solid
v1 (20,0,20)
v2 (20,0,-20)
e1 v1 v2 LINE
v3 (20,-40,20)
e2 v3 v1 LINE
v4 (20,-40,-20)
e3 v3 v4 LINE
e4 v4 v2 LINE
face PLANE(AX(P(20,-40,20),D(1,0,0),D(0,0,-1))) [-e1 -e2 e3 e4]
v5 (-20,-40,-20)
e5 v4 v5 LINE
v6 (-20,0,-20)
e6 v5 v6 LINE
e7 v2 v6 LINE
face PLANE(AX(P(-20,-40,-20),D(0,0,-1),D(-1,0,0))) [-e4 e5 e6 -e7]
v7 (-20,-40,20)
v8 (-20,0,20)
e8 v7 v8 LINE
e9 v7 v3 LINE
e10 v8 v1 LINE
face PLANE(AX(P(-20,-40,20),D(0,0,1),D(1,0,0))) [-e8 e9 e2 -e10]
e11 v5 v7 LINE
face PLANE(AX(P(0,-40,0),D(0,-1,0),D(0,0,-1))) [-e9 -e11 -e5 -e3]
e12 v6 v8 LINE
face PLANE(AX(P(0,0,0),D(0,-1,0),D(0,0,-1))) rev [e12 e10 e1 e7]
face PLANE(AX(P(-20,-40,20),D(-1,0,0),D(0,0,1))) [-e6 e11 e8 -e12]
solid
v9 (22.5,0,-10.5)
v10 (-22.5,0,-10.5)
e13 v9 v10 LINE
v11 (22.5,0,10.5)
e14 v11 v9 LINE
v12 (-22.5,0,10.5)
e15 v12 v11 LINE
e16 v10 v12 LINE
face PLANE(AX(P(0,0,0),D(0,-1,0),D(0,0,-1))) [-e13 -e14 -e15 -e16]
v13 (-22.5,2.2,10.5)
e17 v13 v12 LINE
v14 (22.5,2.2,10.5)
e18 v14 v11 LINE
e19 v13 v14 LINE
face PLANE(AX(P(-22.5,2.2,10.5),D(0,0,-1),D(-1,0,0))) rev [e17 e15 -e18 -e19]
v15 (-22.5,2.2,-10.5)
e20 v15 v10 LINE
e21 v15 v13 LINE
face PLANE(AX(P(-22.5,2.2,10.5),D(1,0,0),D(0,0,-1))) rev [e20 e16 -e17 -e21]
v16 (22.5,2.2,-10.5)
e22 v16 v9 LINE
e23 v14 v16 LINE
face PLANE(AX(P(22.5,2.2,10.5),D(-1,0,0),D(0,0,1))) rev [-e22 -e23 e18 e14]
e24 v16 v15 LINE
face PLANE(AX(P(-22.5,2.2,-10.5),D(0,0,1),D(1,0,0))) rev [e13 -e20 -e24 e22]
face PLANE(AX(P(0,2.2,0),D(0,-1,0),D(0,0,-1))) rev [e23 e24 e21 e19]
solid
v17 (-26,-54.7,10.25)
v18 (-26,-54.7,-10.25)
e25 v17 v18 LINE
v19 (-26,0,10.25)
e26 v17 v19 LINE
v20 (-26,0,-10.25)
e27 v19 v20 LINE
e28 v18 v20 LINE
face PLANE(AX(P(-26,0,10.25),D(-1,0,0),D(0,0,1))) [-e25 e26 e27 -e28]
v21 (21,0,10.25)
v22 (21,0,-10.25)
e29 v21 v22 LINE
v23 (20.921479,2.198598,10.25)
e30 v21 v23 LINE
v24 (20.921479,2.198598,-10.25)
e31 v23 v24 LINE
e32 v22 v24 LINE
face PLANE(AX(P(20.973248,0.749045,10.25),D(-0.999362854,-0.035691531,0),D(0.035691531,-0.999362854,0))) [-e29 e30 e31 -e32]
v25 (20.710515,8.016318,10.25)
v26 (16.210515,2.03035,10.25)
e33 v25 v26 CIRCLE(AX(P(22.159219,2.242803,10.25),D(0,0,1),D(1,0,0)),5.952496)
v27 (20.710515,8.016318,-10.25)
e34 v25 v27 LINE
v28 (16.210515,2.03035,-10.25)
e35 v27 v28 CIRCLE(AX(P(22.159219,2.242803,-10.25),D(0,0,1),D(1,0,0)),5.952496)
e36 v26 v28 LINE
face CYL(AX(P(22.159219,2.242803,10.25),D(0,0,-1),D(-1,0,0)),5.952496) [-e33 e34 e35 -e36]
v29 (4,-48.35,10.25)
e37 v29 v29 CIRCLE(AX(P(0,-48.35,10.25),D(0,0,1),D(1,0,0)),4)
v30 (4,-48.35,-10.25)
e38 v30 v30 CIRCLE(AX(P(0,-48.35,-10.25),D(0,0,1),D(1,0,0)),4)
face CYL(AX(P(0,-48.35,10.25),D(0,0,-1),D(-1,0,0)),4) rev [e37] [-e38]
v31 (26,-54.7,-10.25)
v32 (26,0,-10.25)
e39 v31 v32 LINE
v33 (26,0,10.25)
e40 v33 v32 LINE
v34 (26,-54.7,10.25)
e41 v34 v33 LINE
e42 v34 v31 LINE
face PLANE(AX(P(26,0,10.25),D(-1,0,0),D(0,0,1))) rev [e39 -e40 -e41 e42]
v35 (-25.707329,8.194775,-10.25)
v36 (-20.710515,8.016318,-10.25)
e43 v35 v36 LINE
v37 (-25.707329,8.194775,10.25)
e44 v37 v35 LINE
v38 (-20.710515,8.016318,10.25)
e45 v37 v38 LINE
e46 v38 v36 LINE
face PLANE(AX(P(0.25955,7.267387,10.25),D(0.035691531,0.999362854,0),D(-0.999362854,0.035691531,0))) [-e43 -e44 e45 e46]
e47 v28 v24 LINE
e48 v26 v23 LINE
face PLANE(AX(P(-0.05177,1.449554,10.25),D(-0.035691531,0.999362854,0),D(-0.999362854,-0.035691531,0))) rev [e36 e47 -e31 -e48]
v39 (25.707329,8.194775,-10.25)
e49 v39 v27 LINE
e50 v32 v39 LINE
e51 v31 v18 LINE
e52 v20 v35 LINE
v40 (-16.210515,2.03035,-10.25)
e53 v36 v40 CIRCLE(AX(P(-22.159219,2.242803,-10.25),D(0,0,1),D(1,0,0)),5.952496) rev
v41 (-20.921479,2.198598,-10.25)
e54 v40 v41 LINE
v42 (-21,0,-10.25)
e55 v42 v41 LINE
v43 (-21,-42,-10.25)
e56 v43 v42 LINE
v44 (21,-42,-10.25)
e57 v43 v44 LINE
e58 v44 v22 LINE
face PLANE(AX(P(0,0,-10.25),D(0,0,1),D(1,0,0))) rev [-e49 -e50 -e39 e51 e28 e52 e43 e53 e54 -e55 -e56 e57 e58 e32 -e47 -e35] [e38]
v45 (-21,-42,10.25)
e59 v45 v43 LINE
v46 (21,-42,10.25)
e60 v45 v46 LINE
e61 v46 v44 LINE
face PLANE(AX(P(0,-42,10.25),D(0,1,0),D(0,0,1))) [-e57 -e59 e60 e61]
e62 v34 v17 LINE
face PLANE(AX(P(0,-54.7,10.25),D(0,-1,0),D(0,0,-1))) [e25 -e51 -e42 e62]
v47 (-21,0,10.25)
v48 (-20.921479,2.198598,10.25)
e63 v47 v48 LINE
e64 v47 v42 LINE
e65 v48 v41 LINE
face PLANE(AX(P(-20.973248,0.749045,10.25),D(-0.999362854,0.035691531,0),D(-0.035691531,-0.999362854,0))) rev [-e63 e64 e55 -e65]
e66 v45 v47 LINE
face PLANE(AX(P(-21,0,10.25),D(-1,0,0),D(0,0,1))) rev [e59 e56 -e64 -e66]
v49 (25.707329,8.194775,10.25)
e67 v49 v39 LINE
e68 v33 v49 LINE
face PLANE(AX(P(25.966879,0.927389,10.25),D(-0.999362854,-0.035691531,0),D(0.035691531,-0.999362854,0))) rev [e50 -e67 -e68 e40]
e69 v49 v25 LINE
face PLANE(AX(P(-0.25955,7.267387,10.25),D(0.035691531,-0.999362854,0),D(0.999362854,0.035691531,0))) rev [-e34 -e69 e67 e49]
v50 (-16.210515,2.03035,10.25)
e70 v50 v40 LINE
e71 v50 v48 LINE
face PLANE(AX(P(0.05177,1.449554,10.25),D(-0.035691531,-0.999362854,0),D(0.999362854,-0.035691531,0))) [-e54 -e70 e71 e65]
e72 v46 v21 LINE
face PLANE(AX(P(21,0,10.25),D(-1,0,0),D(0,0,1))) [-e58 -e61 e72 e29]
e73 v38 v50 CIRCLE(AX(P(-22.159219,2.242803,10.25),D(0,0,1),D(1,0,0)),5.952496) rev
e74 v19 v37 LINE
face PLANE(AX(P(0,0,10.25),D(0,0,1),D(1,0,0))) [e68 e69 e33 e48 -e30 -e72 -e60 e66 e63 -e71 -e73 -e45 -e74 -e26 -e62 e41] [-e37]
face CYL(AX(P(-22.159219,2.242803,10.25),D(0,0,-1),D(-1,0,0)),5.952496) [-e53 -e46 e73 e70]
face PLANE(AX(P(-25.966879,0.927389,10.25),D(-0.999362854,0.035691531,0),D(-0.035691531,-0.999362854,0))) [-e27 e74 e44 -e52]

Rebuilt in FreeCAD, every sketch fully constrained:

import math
import FreeCAD as App
import Part
import Sketcher
from FreeCAD import Vector
Q = App.Units.Quantity

doc = App.newDocument("Part")
params = doc.addObject("Spreadsheet::Sheet", "Params")
for row, (alias, value) in enumerate([
    ("sketch1_width", "45 mm"),
    ("sketch1_height", "21 mm"),
    ("pad1_length", "2.2 mm"),
    ("sketch2_width", "40 mm"),
    ("pad2_length", "40 mm"),
    ("sketch3_diameter", "8 mm"),
    ("sketch3_width", "42 mm"),
    ("sketch3_width2", "52 mm"),
    ("sketch3_height", "42 mm"),
    ("sketch3_length", "5 mm"),
    ("pad3_length", "20.5 mm"),
], start=1):
    params.set(f"A{row}", alias)
    params.set(f"B{row}", "=" + value)
    params.setAlias(f"B{row}", alias)

body = doc.addObject("PartDesign::Body", "Body")

sketch1 = body.newObject("Sketcher::SketchObject", "Sketch")
sketch1.AttachmentSupport = (doc.getObject("XZ_Plane"), [""])
sketch1.MapMode = "FlatFace"
sketch1.addGeometry([
    Part.LineSegment(Vector(-22, -10, 0), Vector(-22, 10, 0)),
    Part.LineSegment(Vector(-22, 10, 0), Vector(22, 10, 0)),
    Part.LineSegment(Vector(22, 10, 0), Vector(22, -10, 0)),
    Part.LineSegment(Vector(22, -10, 0), Vector(-22, -10, 0)),
], False)
sketch1.addConstraint([
    Sketcher.Constraint("Coincident", 0, 2, 1, 1),
    Sketcher.Constraint("Coincident", 1, 2, 2, 1),
    Sketcher.Constraint("Coincident", 2, 2, 3, 1),
    Sketcher.Constraint("Coincident", 3, 2, 0, 1),
    Sketcher.Constraint("Vertical", 0),
    Sketcher.Constraint("Horizontal", 1),
    Sketcher.Constraint("Vertical", 2),
    Sketcher.Constraint("Horizontal", 3),
    Sketcher.Constraint("Symmetric", 0, 2, 2, 2, -1, 1),
    Sketcher.Constraint("DistanceX", 1, 1, 1, 2, Q("45 mm")),
    Sketcher.Constraint("DistanceY", 0, 1, 0, 2, Q("21 mm")),
])
sketch1.setExpression("Constraints[9]", "Params.sketch1_width")
sketch1.setExpression("Constraints[10]", "Params.sketch1_height")
pad1 = body.newObject("PartDesign::Pad", "Pad")
pad1.Profile = sketch1
pad1.setExpression("Length", "Params.pad1_length")
pad1.Reversed = True
body2 = doc.addObject("PartDesign::Body", "Body001")

sketch2 = body2.newObject("Sketcher::SketchObject", "Sketch001")
sketch2.AttachmentSupport = (doc.getObject("XZ_Plane001"), [""])
sketch2.MapMode = "FlatFace"
sketch2.addGeometry([
    Part.LineSegment(Vector(-20, -20, 0), Vector(-20, 20, 0)),
    Part.LineSegment(Vector(-20, 20, 0), Vector(20, 20, 0)),
    Part.LineSegment(Vector(20, 20, 0), Vector(20, -20, 0)),
    Part.LineSegment(Vector(20, -20, 0), Vector(-20, -20, 0)),
], False)
sketch2.addConstraint([
    Sketcher.Constraint("Coincident", 0, 2, 1, 1),
    Sketcher.Constraint("Coincident", 1, 2, 2, 1),
    Sketcher.Constraint("Coincident", 2, 2, 3, 1),
    Sketcher.Constraint("Coincident", 3, 2, 0, 1),
    Sketcher.Constraint("Vertical", 0),
    Sketcher.Constraint("Horizontal", 1),
    Sketcher.Constraint("Vertical", 2),
    Sketcher.Constraint("Horizontal", 3),
    Sketcher.Constraint("Symmetric", 0, 2, 2, 2, -1, 1),
    Sketcher.Constraint("Equal", 3, 0),
    Sketcher.Constraint("DistanceX", 1, 1, 1, 2, Q("40 mm")),
])
sketch2.setExpression("Constraints[10]", "Params.sketch2_width")
pad2 = body2.newObject("PartDesign::Pad", "Pad001")
pad2.Profile = sketch2
pad2.setExpression("Length", "Params.pad2_length")
body3 = doc.addObject("PartDesign::Body", "Body002")

sketch3 = body3.newObject("Sketcher::SketchObject", "Sketch002")
sketch3.AttachmentSupport = (doc.getObject("XY_Plane002"), [""])
sketch3.MapMode = "FlatFace"
sketch3.addGeometry([
    Part.LineSegment(Vector(26, -54.7, 0), Vector(26, 0, 0)),
    Part.LineSegment(Vector(26, 0, 0), Vector(25.707329, 8.194775, 0)),
    Part.LineSegment(Vector(25.707329, 8.194775, 0), Vector(20.710515, 8.016318, 0)),
    Part.ArcOfCircle(Part.Circle(Vector(22.159219, 2.242803, 0), Vector(0, 0, 1), 5.952496), math.radians(104.085969), math.radians(182.045408)),
    Part.LineSegment(Vector(16.210515, 2.03035, 0), Vector(20.921479, 2.198598, 0)),
    Part.LineSegment(Vector(20.921479, 2.198598, 0), Vector(21, 0, 0)),
    Part.LineSegment(Vector(21, 0, 0), Vector(21, -42, 0)),
    Part.LineSegment(Vector(21, -42, 0), Vector(-21, -42, 0)),
    Part.LineSegment(Vector(-21, -42, 0), Vector(-21, 0, 0)),
    Part.LineSegment(Vector(-21, 0, 0), Vector(-20.921479, 2.198598, 0)),
    Part.LineSegment(Vector(-20.921479, 2.198598, 0), Vector(-16.210515, 2.03035, 0)),
    Part.ArcOfCircle(Part.Circle(Vector(-22.159219, 2.242803, 0), Vector(0, 0, 1), 5.952496), math.radians(-2.045408), math.radians(75.914031)),
    Part.LineSegment(Vector(-20.710515, 8.016318, 0), Vector(-25.707329, 8.194775, 0)),
    Part.LineSegment(Vector(-25.707329, 8.194775, 0), Vector(-26, 0, 0)),
    Part.LineSegment(Vector(-26, 0, 0), Vector(-26, -54.7, 0)),
    Part.LineSegment(Vector(-26, -54.7, 0), Vector(26, -54.7, 0)),
    Part.Circle(Vector(0, -48.35, 0), Vector(0, 0, 1), 4),
], False)
sketch3.addConstraint([
    Sketcher.Constraint("Coincident", 0, 2, 1, 1),
    Sketcher.Constraint("Coincident", 1, 2, 2, 1),
    Sketcher.Constraint("Coincident", 2, 2, 3, 1),
    Sketcher.Constraint("Coincident", 3, 2, 4, 1),
    Sketcher.Constraint("Coincident", 4, 2, 5, 1),
    Sketcher.Constraint("Coincident", 5, 2, 6, 1),
    Sketcher.Constraint("Coincident", 6, 2, 7, 1),
    Sketcher.Constraint("Coincident", 7, 2, 8, 1),
    Sketcher.Constraint("Coincident", 8, 2, 9, 1),
    Sketcher.Constraint("Coincident", 9, 2, 10, 1),
    Sketcher.Constraint("Coincident", 10, 2, 11, 1),
    Sketcher.Constraint("Coincident", 11, 2, 12, 1),
    Sketcher.Constraint("Coincident", 12, 2, 13, 1),
    Sketcher.Constraint("Coincident", 13, 2, 14, 1),
    Sketcher.Constraint("Coincident", 14, 2, 15, 1),
    Sketcher.Constraint("Coincident", 15, 2, 0, 1),
    Sketcher.Constraint("Vertical", 0),
    Sketcher.Constraint("Vertical", 6),
    Sketcher.Constraint("Horizontal", 7),
    Sketcher.Constraint("Vertical", 8),
    Sketcher.Constraint("Vertical", 14),
    Sketcher.Constraint("Horizontal", 15),
    Sketcher.Constraint("PointOnObject", 16, 3, -2),
    Sketcher.Constraint("PointOnObject", 0, 2, -1),
    Sketcher.Constraint("PointOnObject", 5, 2, -1),
    Sketcher.Constraint("PointOnObject", 8, 2, -1),
    Sketcher.Constraint("PointOnObject", 13, 2, -1),
    Sketcher.Constraint("Diameter", 16, Q("8 mm")),
    Sketcher.Constraint("DistanceX", 7, 2, 7, 1, Q("42 mm")),
    Sketcher.Constraint("DistanceX", 15, 1, 15, 2, Q("52 mm")),
    Sketcher.Constraint("DistanceY", 6, 2, 6, 1, Q("42 mm")),
    Sketcher.Constraint("Distance", 2, Q("5 mm")),
    Sketcher.Constraint("Distance", 12, Q("5 mm")),
    Sketcher.Constraint("DistanceY", 0, 1, 0, 2, Q("54.7 mm")),
    Sketcher.Constraint("DistanceX", -1, 1, 0, 2, Q("26 mm")),
    Sketcher.Constraint("DistanceX", -1, 1, 5, 2, Q("21 mm")),
    Sketcher.Constraint("Distance", 1, Q("8.2 mm")),
    Sketcher.Constraint("Distance", 5, Q("2.2 mm")),
    Sketcher.Constraint("Distance", 9, Q("2.2 mm")),
    Sketcher.Constraint("Distance", 13, Q("8.2 mm")),
    Sketcher.Constraint("DistanceX", 3, 2, 2, 2, Q("4.5 mm")),
    Sketcher.Constraint("DistanceX", 11, 2, 10, 2, Q("4.5 mm")),
    Sketcher.Constraint("DistanceY", 16, 3, -1, 1, Q("48.35 mm")),
    Sketcher.Constraint("Radius", 3, Q("5.952496 mm")),
    Sketcher.Constraint("Radius", 11, Q("5.952496 mm")),
    Sketcher.Constraint("DistanceY", -1, 1, 4, 2, Q("2.198598 mm")),
    Sketcher.Constraint("DistanceY", -1, 1, 9, 2, Q("2.198598 mm")),
    Sketcher.Constraint("DistanceX", -1, 1, 3, 3, Q("22.159219 mm")),
    Sketcher.Constraint("DistanceX", 11, 3, -1, 1, Q("22.159219 mm")),
    Sketcher.Constraint("DistanceX", -1, 1, 1, 2, Q("25.707329 mm")),
    Sketcher.Constraint("DistanceY", -1, 1, 3, 2, Q("2.03035 mm")),
    Sketcher.Constraint("DistanceY", -1, 1, 10, 2, Q("2.03035 mm")),
    Sketcher.Constraint("DistanceX", 12, 2, -1, 1, Q("25.707329 mm")),
])
sketch3.setExpression("Constraints[27]", "Params.sketch3_diameter")
sketch3.setExpression("Constraints[28]", "Params.sketch3_width")
sketch3.setExpression("Constraints[29]", "Params.sketch3_width2")
sketch3.setExpression("Constraints[30]", "Params.sketch3_height")
sketch3.setExpression("Constraints[31]", "Params.sketch3_length")
pad3 = body3.newObject("PartDesign::Pad", "Pad002")
pad3.Profile = sketch3
pad3.setExpression("Length", "Params.pad3_length")
pad3.Midplane = True

doc.recompute()
